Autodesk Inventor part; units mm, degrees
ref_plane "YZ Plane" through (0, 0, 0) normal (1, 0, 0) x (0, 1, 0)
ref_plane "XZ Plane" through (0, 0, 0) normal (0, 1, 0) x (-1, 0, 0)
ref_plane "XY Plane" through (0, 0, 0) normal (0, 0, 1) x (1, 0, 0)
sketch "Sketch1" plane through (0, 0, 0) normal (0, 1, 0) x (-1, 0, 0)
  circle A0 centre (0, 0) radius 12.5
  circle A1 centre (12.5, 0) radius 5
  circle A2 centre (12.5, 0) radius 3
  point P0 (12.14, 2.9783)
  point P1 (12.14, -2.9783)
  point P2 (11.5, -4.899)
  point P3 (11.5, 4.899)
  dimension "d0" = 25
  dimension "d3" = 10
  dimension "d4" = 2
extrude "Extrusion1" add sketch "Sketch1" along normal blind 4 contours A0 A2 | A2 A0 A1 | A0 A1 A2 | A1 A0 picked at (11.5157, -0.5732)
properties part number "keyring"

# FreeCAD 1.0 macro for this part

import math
import FreeCAD as App
import Part
import Sketcher

doc = App.newDocument("Part")
params = doc.addObject("Spreadsheet::Sheet", "Params")
for row, (alias, value) in enumerate([
    ("sketch1_radius", "5 mm"),
    ("sketch1_radius2", "12.5 mm"),
    ("sketch1_radius3", "3 mm"),
    ("pad1_length", "4 mm"),
], start=1):
    params.set(f"A{row}", alias)
    params.set(f"B{row}", "=" + value)
    params.setAlias(f"B{row}", alias)

body = doc.addObject("PartDesign::Body", "Body")

# Sketch on XZ plane
sketch1 = body.newObject("Sketcher::SketchObject", "Sketch")
sketch1.AttachmentSupport = (doc.getObject("XZ_Plane"), [""])
sketch1.MapMode = "FlatFace"
sketch1.addGeometry([
    Part.ArcOfCircle(Part.Circle(App.Vector(0, 0, 0), App.Vector(0, 0, 1), 12.5), math.radians(-157), math.radians(157)),
    Part.ArcOfCircle(Part.Circle(App.Vector(-12.5, 0, 0), App.Vector(0, 0, 1), 5), math.radians(78), math.radians(282)),
    Part.ArcOfCircle(Part.Circle(App.Vector(0, 0, 0), App.Vector(0, 0, 1), 12.5), math.radians(166), math.radians(194)),
    Part.ArcOfCircle(Part.Circle(App.Vector(-12.5, 0, 0), App.Vector(0, 0, 1), 3), math.radians(83), math.radians(277)),
], False)
sketch1.addConstraint([
    Sketcher.Constraint("Coincident", 0, 1, 1, 2),
    Sketcher.Constraint("Coincident", 1, 1, 0, 2),
    Sketcher.Constraint("Coincident", 2, 1, 3, 1),
    Sketcher.Constraint("Coincident", 3, 2, 2, 2),
    Sketcher.Constraint("Coincident", 0, 3, -1, 1),
    Sketcher.Constraint("Coincident", 2, 3, -1, 1),
    Sketcher.Constraint("Coincident", 3, 3, 1, 3),
    Sketcher.Constraint("Equal", 0, 2),
    Sketcher.Constraint("PointOnObject", 1, 3, -1),
    Sketcher.Constraint("Radius", 1, 5.0),
    Sketcher.Constraint("Radius", 0, 12.5),
    Sketcher.Constraint("Radius", 3, 3.0),
    Sketcher.Constraint("DistanceX", 1, 3, 0, 1, 1.0),
])
sketch1.setExpression("Constraints[9]", "Params.sketch1_radius")
sketch1.setExpression("Constraints[10]", "Params.sketch1_radius2")
sketch1.setExpression("Constraints[11]", "Params.sketch1_radius3")
pad1 = body.newObject("PartDesign::Pad", "Pad")
pad1.Profile = sketch1
pad1.setExpression("Length", "Params.pad1_length")
pad1.Reversed = True

doc.recompute()
